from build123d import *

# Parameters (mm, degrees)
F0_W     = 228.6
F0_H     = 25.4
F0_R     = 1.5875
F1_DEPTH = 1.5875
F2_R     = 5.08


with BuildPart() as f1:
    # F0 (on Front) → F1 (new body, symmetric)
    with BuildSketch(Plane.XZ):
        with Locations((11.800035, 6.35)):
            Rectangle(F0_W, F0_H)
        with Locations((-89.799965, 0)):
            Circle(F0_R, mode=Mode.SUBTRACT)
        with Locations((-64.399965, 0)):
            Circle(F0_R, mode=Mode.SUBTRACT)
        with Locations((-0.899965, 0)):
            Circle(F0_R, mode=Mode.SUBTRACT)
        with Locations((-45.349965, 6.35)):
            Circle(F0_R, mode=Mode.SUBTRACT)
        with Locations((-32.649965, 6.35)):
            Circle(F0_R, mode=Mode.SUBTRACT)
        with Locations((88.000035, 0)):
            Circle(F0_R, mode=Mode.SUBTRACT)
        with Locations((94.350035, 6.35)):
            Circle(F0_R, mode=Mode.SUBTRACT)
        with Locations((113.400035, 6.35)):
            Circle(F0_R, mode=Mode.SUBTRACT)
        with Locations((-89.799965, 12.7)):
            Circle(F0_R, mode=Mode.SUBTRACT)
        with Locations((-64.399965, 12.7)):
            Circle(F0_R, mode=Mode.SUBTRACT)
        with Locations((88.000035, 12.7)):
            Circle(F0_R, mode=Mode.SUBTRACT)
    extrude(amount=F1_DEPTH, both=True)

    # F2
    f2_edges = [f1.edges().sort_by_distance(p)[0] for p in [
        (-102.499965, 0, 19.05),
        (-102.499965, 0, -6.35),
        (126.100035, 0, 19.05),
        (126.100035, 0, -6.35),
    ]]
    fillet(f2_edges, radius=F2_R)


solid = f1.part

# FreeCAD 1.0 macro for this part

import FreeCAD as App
import Part
import Sketcher

V = App.Vector
Q = App.Units.Quantity


def edges_at(feature, points):
    """Names of the edges that pass closest to the given points."""
    edges = feature.Shape.Edges
    near = lambda p: min(range(len(edges)), key=lambda i: edges[i].distToShape(Part.Vertex(*p))[0])
    return sorted({f"Edge{near(p) + 1}" for p in points})

doc = App.newDocument("Part")
params = doc.addObject("Spreadsheet::Sheet", "Params")
for row, (alias, value) in enumerate([
    ("sketch1_width", "9 in"),
    ("sketch1_height", "1 in"),
    ("sketch1_diameter", "0.125 in"),
    ("pad1_length", "0.125 in"),
    ("fillet_radius", "0.2 in"),
], start=1):
    params.set(f"A{row}", alias)
    params.set(f"B{row}", "=" + value)
    params.setAlias(f"B{row}", alias)

body = doc.addObject("PartDesign::Body", "Body")

# Sketch on XZ plane
sketch1 = body.newObject("Sketcher::SketchObject", "Sketch")
sketch1.AttachmentSupport = (doc.getObject("XZ_Plane"), [""])
sketch1.MapMode = "FlatFace"
sketch1.addGeometry(Part.LineSegment(V(-102.5, 19.1, 0), V(-102.5, -6.3, 0)), False)
sketch1.addGeometry(Part.LineSegment(V(-102.5, -6.3, 0), V(126.1, -6.3, 0)), False)
sketch1.addGeometry(Part.LineSegment(V(126.1, -6.3, 0), V(126.1, 19.1, 0)), False)
sketch1.addGeometry(Part.LineSegment(V(126.1, 19.1, 0), V(-102.5, 19.1, 0)), False)
sketch1.addGeometry(Part.Circle(V(-89.8, 0, 0), V(0, 0, 1), 1.6), False)
sketch1.addGeometry(Part.Circle(V(-64.4, 0, 0), V(0, 0, 1), 1.6), False)
sketch1.addGeometry(Part.Circle(V(-0.9, 0, 0), V(0, 0, 1), 1.6), False)
sketch1.addGeometry(Part.Circle(V(88, 0, 0), V(0, 0, 1), 1.6), False)
sketch1.addGeometry(Part.Circle(V(-45.3, 6.3, 0), V(0, 0, 1), 1.6), False)
sketch1.addGeometry(Part.Circle(V(-32.6, 6.3, 0), V(0, 0, 1), 1.6), False)
sketch1.addGeometry(Part.Circle(V(-89.8, 12.7, 0), V(0, 0, 1), 1.6), False)
sketch1.addGeometry(Part.Circle(V(-64.4, 12.7, 0), V(0, 0, 1), 1.6), False)
sketch1.addGeometry(Part.Circle(V(94.4, 6.3, 0), V(0, 0, 1), 1.6), False)
sketch1.addGeometry(Part.Circle(V(113.4, 6.3, 0), V(0, 0, 1), 1.6), False)
sketch1.addGeometry(Part.Circle(V(88, 12.7, 0), V(0, 0, 1), 1.6), False)
sketch1.addConstraint(Sketcher.Constraint("Coincident", 0, 2, 1, 1))
sketch1.addConstraint(Sketcher.Constraint("Coincident", 1, 2, 2, 1))
sketch1.addConstraint(Sketcher.Constraint("Coincident", 2, 2, 3, 1))
sketch1.addConstraint(Sketcher.Constraint("Coincident", 3, 2, 0, 1))
sketch1.addConstraint(Sketcher.Constraint("Vertical", 0))
sketch1.addConstraint(Sketcher.Constraint("Horizontal", 1))
sketch1.addConstraint(Sketcher.Constraint("Vertical", 2))
sketch1.addConstraint(Sketcher.Constraint("Horizontal", 3))
sketch1.addConstraint(Sketcher.Constraint("Equal", 4, 5))
sketch1.addConstraint(Sketcher.Constraint("Equal", 5, 6))
sketch1.addConstraint(Sketcher.Constraint("Equal", 6, 7))
sketch1.addConstraint(Sketcher.Constraint("Equal", 7, 8))
sketch1.addConstraint(Sketcher.Constraint("Equal", 8, 9))
sketch1.addConstraint(Sketcher.Constraint("Equal", 9, 10))
sketch1.addConstraint(Sketcher.Constraint("Equal", 10, 11))
sketch1.addConstraint(Sketcher.Constraint("Equal", 11, 12))
sketch1.addConstraint(Sketcher.Constraint("Equal", 12, 13))
sketch1.addConstraint(Sketcher.Constraint("Equal", 13, 14))
sketch1.addConstraint(Sketcher.Constraint("PointOnObject", 4, 3, -1))
sketch1.addConstraint(Sketcher.Constraint("PointOnObject", 5, 3, -1))
sketch1.addConstraint(Sketcher.Constraint("PointOnObject", 6, 3, -1))
sketch1.addConstraint(Sketcher.Constraint("PointOnObject", 7, 3, -1))
sketch1.addConstraint(Sketcher.Constraint("Horizontal", 8, 3, 9, 3))
sketch1.addConstraint(Sketcher.Constraint("Horizontal", 10, 3, 11, 3))
sketch1.addConstraint(Sketcher.Constraint("Horizontal", 9, 3, 12, 3))
sketch1.addConstraint(Sketcher.Constraint("Horizontal", 12, 3, 13, 3))
sketch1.addConstraint(Sketcher.Constraint("Horizontal", 11, 3, 14, 3))
sketch1.addConstraint(Sketcher.Constraint("Vertical", 4, 3, 10, 3))
sketch1.addConstraint(Sketcher.Constraint("Vertical", 5, 3, 11, 3))
sketch1.addConstraint(Sketcher.Constraint("Vertical", 7, 3, 14, 3))
sketch1.addConstraint(Sketcher.Constraint("DistanceX", 1, 1, 1, 2, Q("9 in")))
sketch1.addConstraint(Sketcher.Constraint("DistanceY", 0, 2, 0, 1, Q("1 in")))
sketch1.addConstraint(Sketcher.Constraint("Diameter", 4, Q("0.125 in")))
sketch1.addConstraint(Sketcher.Constraint("DistanceX", 4, 3, 5, 3, Q("1 in")))
sketch1.addConstraint(Sketcher.Constraint("DistanceX", 5, 3, 7, 3, Q("6 in")))
sketch1.addConstraint(Sketcher.Constraint("DistanceX", 9, 3, 12, 3, Q("5 in")))
sketch1.addConstraint(Sketcher.Constraint("DistanceX", 7, 3, 13, 3, Q("1 in")))
sketch1.addConstraint(Sketcher.Constraint("DistanceX", 6, 3, 1, 2, Q("5 in")))
sketch1.addConstraint(Sketcher.Constraint("DistanceY", -1, 1, 10, 3, Q("0.5 in")))
sketch1.addConstraint(Sketcher.Constraint("DistanceX", 5, 3, 6, 3, Q("2.5 in")))
sketch1.addConstraint(Sketcher.Constraint("DistanceX", 8, 3, 9, 3, Q("0.5 in")))
sketch1.addConstraint(Sketcher.Constraint("DistanceY", 0, 2, 8, 3, Q("0.5 in")))
sketch1.addConstraint(Sketcher.Constraint("DistanceY", -1, 1, 8, 3, Q("0.25 in")))
sketch1.addConstraint(Sketcher.Constraint("DistanceX", 5, 3, 8, 3, Q("0.75 in")))
sketch1.addConstraint(Sketcher.Constraint("DistanceX", 4, 3, -1, 1, Q("89.799965 mm")))
sketch1.setExpression("Constraints[30]", "Params.sketch1_width")
sketch1.setExpression("Constraints[31]", "Params.sketch1_height")
sketch1.setExpression("Constraints[32]", "Params.sketch1_diameter")
pad1 = body.newObject("PartDesign::Pad", "Pad")
pad1.Profile = sketch1
pad1.setExpression("Length", "Params.pad1_length")
pad1.Midplane = True
doc.recompute()

fillet = body.newObject("PartDesign::Fillet", "Fillet")
fillet.Base = (pad1, edges_at(pad1, [
    (-102.5, 0, 19.05),
    (-102.5, 0, -6.35),
    (126.1, 0, 19.05),
    (126.1, 0, -6.35),
]))
fillet.setExpression("Radius", "Params.fillet_radius")

doc.recompute()
